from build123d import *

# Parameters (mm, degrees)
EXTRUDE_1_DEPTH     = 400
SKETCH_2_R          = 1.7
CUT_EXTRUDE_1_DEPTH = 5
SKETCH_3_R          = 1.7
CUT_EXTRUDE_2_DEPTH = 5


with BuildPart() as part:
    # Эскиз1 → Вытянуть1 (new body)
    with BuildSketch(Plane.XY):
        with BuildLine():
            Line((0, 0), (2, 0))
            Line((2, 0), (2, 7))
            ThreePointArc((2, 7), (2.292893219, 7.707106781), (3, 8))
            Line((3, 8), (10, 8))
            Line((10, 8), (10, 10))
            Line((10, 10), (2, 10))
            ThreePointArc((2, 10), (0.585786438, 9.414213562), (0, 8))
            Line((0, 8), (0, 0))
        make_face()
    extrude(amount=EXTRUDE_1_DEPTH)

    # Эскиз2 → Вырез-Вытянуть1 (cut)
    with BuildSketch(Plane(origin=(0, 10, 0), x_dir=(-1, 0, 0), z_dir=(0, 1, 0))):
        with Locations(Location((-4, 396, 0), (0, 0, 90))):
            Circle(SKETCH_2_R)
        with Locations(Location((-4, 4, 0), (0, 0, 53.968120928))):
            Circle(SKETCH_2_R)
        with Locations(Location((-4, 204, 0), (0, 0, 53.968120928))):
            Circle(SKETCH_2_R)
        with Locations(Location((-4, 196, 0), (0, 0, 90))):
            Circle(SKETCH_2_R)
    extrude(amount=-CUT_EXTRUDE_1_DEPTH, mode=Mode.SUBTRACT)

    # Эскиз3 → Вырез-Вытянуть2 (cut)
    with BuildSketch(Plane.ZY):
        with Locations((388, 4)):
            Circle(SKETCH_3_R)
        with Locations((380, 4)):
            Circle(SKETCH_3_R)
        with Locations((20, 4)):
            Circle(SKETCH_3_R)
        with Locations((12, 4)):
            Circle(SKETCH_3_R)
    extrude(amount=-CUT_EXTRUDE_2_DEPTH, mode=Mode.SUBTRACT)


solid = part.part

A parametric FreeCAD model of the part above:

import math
import FreeCAD as App
import Part
import Sketcher

doc = App.newDocument("Part")
body = doc.addObject("PartDesign::Body", "Body")

sketch1 = body.newObject("Sketcher::SketchObject", "Sketch")
sketch1.AttachmentSupport = (doc.getObject("XY_Plane"), [""])
sketch1.MapMode = "FlatFace"
sketch1.addGeometry(Part.LineSegment(App.Vector(0, 0, 0), App.Vector(2, 0, 0)), False)
sketch1.addGeometry(Part.LineSegment(App.Vector(2, 0, 0), App.Vector(2, 7, 0)), False)
sketch1.addGeometry(Part.ArcOfCircle(Part.Circle(App.Vector(3, 7, 0), App.Vector(0, 0, 1), 1), math.radians(90), math.radians(180)), False)
sketch1.addGeometry(Part.LineSegment(App.Vector(3, 8, 0), App.Vector(10, 8, 0)), False)
sketch1.addGeometry(Part.LineSegment(App.Vector(10, 8, 0), App.Vector(10, 10, 0)), False)
sketch1.addGeometry(Part.LineSegment(App.Vector(10, 10, 0), App.Vector(2, 10, 0)), False)
sketch1.addGeometry(Part.ArcOfCircle(Part.Circle(App.Vector(2, 8, 0), App.Vector(0, 0, 1), 2), math.radians(90), math.radians(180)), False)
sketch1.addGeometry(Part.LineSegment(App.Vector(0, 8, 0), App.Vector(0, 0, 0)), False)
sketch1.addConstraint(Sketcher.Constraint("Coincident", 0, 2, 1, 1))
sketch1.addConstraint(Sketcher.Constraint("Tangent", 1, 2, 2, 2))
sketch1.addConstraint(Sketcher.Constraint("Tangent", 2, 1, 3, 1))
sketch1.addConstraint(Sketcher.Constraint("Coincident", 3, 2, 4, 1))
sketch1.addConstraint(Sketcher.Constraint("Coincident", 4, 2, 5, 1))
sketch1.addConstraint(Sketcher.Constraint("Tangent", 5, 2, 6, 1))
sketch1.addConstraint(Sketcher.Constraint("Tangent", 6, 2, 7, 1))
sketch1.addConstraint(Sketcher.Constraint("Coincident", 7, 2, 0, 1))
sketch1.addConstraint(Sketcher.Constraint("Horizontal", 0))
sketch1.addConstraint(Sketcher.Constraint("Vertical", 1))
sketch1.addConstraint(Sketcher.Constraint("Horizontal", 3))
sketch1.addConstraint(Sketcher.Constraint("Vertical", 4))
sketch1.addConstraint(Sketcher.Constraint("Horizontal", 5))
sketch1.addConstraint(Sketcher.Constraint("Vertical", 7))
sketch1.addConstraint(Sketcher.Constraint("Coincident", 7, 2, -1, 1))
sketch1.addConstraint(Sketcher.Constraint("Horizontal", 6, 3, 2, 1))
sketch1.addConstraint(Sketcher.Constraint("Vertical", 6, 3, 0, 2))
sketch1.addConstraint(Sketcher.Constraint("Equal", 3, 1))
sketch1.addConstraint(Sketcher.Constraint("Radius", 2, 1.0))
sketch1.addConstraint(Sketcher.Constraint("Radius", 6, 2.0))
sketch1.addConstraint(Sketcher.Constraint("DistanceX", 3, 1, 3, 2, 7.0))
pad1 = body.newObject("PartDesign::Pad", "Pad")
pad1.Profile = sketch1
pad1.Length = 400

sketch2 = body.newObject("Sketcher::SketchObject", "Sketch001")
sketch2.AttachmentSupport = (doc.getObject("XZ_Plane"), [""])
sketch2.MapMode = "FlatFace"
sketch2.AttachmentOffset = App.Placement(App.Vector(0, 0, -10), App.Rotation())
sketch2.addGeometry(Part.Circle(App.Vector(4, 396, 0), App.Vector(0, 0, 1), 1.7), False)
sketch2.addGeometry(Part.Circle(App.Vector(4, 4, 0), App.Vector(0, 0, 1), 1.7), False)
sketch2.addGeometry(Part.Circle(App.Vector(4, 204, 0), App.Vector(0, 0, 1), 1.7), False)
sketch2.addGeometry(Part.Circle(App.Vector(4, 196, 0), App.Vector(0, 0, 1), 1.7), False)
sketch2.addConstraint(Sketcher.Constraint("Equal", 0, 1))
sketch2.addConstraint(Sketcher.Constraint("Equal", 1, 2))
sketch2.addConstraint(Sketcher.Constraint("Equal", 2, 3))
sketch2.addConstraint(Sketcher.Constraint("Vertical", 0, 3, 1, 3))
sketch2.addConstraint(Sketcher.Constraint("Vertical", 1, 3, 2, 3))
sketch2.addConstraint(Sketcher.Constraint("Vertical", 2, 3, 3, 3))
sketch2.addConstraint(Sketcher.Constraint("Diameter", 0, 3.4))
sketch2.addConstraint(Sketcher.Constraint("DistanceX", -1, 1, 0, 3, 4.0))
sketch2.addConstraint(Sketcher.Constraint("DistanceY", -1, 1, 0, 3, 396.0))
sketch2.addConstraint(Sketcher.Constraint("DistanceY", -1, 1, 1, 3, 4.0))
sketch2.addConstraint(Sketcher.Constraint("DistanceY", -1, 1, 2, 3, 204.0))
sketch2.addConstraint(Sketcher.Constraint("DistanceY", -1, 1, 3, 3, 196.0))
pocket1 = body.newObject("PartDesign::Pocket", "Pocket")
pocket1.Profile = sketch2
pocket1.Length = 5
pocket1.Reversed = True

sketch3 = body.newObject("Sketcher::SketchObject", "Sketch002")
sketch3.AttachmentSupport = (doc.getObject("YZ_Plane"), [""])
sketch3.MapMode = "FlatFace"
sketch3.addGeometry(Part.Circle(App.Vector(4, 388, 0), App.Vector(0, 0, 1), 1.7), False)
sketch3.addGeometry(Part.Circle(App.Vector(4, 380, 0), App.Vector(0, 0, 1), 1.7), False)
sketch3.addGeometry(Part.Circle(App.Vector(4, 20, 0), App.Vector(0, 0, 1), 1.7), False)
sketch3.addGeometry(Part.Circle(App.Vector(4, 12, 0), App.Vector(0, 0, 1), 1.7), False)
sketch3.addConstraint(Sketcher.Constraint("Equal", 0, 1))
sketch3.addConstraint(Sketcher.Constraint("Equal", 1, 2))
sketch3.addConstraint(Sketcher.Constraint("Equal", 2, 3))
sketch3.addConstraint(Sketcher.Constraint("Vertical", 0, 3, 1, 3))
sketch3.addConstraint(Sketcher.Constraint("Vertical", 1, 3, 2, 3))
sketch3.addConstraint(Sketcher.Constraint("Vertical", 2, 3, 3, 3))
sketch3.addConstraint(Sketcher.Constraint("Diameter", 0, 3.4))
sketch3.addConstraint(Sketcher.Constraint("DistanceX", -1, 1, 0, 3, 4.0))
sketch3.addConstraint(Sketcher.Constraint("DistanceY", -1, 1, 0, 3, 388.0))
sketch3.addConstraint(Sketcher.Constraint("DistanceY", -1, 1, 1, 3, 380.0))
sketch3.addConstraint(Sketcher.Constraint("DistanceY", -1, 1, 2, 3, 20.0))
sketch3.addConstraint(Sketcher.Constraint("DistanceY", -1, 1, 3, 3, 12.0))
pocket2 = body.newObject("PartDesign::Pocket", "Pocket001")
pocket2.Profile = sketch3
pocket2.Length = 5
pocket2.Reversed = True

doc.recompute()
